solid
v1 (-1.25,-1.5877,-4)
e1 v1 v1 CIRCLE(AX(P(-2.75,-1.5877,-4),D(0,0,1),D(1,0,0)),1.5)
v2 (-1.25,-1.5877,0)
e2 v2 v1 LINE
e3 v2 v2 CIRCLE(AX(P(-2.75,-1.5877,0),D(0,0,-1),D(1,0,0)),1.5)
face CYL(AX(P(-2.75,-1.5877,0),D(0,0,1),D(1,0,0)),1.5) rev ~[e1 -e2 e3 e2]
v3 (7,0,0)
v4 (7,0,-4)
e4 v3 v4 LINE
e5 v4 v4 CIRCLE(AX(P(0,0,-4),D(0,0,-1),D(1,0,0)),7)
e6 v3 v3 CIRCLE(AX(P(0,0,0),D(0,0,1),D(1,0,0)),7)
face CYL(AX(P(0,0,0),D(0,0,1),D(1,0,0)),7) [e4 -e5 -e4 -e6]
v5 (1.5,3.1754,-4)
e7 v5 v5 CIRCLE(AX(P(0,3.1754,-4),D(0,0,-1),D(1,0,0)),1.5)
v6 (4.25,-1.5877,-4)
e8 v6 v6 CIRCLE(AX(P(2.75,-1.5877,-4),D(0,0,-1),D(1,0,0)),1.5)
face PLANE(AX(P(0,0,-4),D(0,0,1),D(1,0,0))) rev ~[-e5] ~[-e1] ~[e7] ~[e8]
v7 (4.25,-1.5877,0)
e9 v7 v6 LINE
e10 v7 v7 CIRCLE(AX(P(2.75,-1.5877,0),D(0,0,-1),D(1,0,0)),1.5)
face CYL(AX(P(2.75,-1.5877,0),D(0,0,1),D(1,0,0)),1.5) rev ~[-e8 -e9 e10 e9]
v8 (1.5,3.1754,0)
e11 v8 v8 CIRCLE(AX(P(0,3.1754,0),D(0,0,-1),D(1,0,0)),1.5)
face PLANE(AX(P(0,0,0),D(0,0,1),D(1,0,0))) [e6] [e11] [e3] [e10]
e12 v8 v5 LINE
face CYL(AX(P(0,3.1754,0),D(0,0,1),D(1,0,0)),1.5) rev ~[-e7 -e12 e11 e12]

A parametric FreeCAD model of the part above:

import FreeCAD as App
import Part
import Sketcher

V = App.Vector
Q = App.Units.Quantity

doc = App.newDocument("Part")
body = doc.addObject("PartDesign::Body", "Body")

# Sketch on XY plane
sketch1 = body.newObject("Sketcher::SketchObject", "Sketch")
sketch1.AttachmentSupport = (doc.getObject("XY_Plane"), [""])
sketch1.MapMode = "FlatFace"
sketch1.addGeometry([
    Part.Circle(V(0, 0, 0), V(0, 0, 1), 7),
    Part.Circle(V(0, 3.2, 0), V(0, 0, 1), 1.5),
    Part.Circle(V(2.8, -1.6, 0), V(0, 0, 1), 1.5),
    Part.Circle(V(-2.8, -1.6, 0), V(0, 0, 1), 1.5),
], False)
sketch1.addConstraint([
    Sketcher.Constraint("Coincident", 0, 3, -1, 1),
    Sketcher.Constraint("Equal", 1, 2),
    Sketcher.Constraint("Equal", 2, 3),
    Sketcher.Constraint("Symmetric", 2, 3, 3, 3, -2),
    Sketcher.Constraint("PointOnObject", 1, 3, -2),
    Sketcher.Constraint("Diameter", 0, Q("14 mm")),
    Sketcher.Constraint("Diameter", 1, Q("3 mm")),
    Sketcher.Constraint("DistanceX", 3, 3, 2, 3, Q("5.5 mm")),
    Sketcher.Constraint("DistanceY", 2, 3, 1, 3, Q("4.763 mm")),
    Sketcher.Constraint("DistanceY", -1, 1, 1, 3, Q("3.1754 mm")),
])
pad1 = body.newObject("PartDesign::Pad", "Pad")
pad1.Profile = sketch1
pad1.Length = 4
pad1.Reversed = True

doc.recompute()
